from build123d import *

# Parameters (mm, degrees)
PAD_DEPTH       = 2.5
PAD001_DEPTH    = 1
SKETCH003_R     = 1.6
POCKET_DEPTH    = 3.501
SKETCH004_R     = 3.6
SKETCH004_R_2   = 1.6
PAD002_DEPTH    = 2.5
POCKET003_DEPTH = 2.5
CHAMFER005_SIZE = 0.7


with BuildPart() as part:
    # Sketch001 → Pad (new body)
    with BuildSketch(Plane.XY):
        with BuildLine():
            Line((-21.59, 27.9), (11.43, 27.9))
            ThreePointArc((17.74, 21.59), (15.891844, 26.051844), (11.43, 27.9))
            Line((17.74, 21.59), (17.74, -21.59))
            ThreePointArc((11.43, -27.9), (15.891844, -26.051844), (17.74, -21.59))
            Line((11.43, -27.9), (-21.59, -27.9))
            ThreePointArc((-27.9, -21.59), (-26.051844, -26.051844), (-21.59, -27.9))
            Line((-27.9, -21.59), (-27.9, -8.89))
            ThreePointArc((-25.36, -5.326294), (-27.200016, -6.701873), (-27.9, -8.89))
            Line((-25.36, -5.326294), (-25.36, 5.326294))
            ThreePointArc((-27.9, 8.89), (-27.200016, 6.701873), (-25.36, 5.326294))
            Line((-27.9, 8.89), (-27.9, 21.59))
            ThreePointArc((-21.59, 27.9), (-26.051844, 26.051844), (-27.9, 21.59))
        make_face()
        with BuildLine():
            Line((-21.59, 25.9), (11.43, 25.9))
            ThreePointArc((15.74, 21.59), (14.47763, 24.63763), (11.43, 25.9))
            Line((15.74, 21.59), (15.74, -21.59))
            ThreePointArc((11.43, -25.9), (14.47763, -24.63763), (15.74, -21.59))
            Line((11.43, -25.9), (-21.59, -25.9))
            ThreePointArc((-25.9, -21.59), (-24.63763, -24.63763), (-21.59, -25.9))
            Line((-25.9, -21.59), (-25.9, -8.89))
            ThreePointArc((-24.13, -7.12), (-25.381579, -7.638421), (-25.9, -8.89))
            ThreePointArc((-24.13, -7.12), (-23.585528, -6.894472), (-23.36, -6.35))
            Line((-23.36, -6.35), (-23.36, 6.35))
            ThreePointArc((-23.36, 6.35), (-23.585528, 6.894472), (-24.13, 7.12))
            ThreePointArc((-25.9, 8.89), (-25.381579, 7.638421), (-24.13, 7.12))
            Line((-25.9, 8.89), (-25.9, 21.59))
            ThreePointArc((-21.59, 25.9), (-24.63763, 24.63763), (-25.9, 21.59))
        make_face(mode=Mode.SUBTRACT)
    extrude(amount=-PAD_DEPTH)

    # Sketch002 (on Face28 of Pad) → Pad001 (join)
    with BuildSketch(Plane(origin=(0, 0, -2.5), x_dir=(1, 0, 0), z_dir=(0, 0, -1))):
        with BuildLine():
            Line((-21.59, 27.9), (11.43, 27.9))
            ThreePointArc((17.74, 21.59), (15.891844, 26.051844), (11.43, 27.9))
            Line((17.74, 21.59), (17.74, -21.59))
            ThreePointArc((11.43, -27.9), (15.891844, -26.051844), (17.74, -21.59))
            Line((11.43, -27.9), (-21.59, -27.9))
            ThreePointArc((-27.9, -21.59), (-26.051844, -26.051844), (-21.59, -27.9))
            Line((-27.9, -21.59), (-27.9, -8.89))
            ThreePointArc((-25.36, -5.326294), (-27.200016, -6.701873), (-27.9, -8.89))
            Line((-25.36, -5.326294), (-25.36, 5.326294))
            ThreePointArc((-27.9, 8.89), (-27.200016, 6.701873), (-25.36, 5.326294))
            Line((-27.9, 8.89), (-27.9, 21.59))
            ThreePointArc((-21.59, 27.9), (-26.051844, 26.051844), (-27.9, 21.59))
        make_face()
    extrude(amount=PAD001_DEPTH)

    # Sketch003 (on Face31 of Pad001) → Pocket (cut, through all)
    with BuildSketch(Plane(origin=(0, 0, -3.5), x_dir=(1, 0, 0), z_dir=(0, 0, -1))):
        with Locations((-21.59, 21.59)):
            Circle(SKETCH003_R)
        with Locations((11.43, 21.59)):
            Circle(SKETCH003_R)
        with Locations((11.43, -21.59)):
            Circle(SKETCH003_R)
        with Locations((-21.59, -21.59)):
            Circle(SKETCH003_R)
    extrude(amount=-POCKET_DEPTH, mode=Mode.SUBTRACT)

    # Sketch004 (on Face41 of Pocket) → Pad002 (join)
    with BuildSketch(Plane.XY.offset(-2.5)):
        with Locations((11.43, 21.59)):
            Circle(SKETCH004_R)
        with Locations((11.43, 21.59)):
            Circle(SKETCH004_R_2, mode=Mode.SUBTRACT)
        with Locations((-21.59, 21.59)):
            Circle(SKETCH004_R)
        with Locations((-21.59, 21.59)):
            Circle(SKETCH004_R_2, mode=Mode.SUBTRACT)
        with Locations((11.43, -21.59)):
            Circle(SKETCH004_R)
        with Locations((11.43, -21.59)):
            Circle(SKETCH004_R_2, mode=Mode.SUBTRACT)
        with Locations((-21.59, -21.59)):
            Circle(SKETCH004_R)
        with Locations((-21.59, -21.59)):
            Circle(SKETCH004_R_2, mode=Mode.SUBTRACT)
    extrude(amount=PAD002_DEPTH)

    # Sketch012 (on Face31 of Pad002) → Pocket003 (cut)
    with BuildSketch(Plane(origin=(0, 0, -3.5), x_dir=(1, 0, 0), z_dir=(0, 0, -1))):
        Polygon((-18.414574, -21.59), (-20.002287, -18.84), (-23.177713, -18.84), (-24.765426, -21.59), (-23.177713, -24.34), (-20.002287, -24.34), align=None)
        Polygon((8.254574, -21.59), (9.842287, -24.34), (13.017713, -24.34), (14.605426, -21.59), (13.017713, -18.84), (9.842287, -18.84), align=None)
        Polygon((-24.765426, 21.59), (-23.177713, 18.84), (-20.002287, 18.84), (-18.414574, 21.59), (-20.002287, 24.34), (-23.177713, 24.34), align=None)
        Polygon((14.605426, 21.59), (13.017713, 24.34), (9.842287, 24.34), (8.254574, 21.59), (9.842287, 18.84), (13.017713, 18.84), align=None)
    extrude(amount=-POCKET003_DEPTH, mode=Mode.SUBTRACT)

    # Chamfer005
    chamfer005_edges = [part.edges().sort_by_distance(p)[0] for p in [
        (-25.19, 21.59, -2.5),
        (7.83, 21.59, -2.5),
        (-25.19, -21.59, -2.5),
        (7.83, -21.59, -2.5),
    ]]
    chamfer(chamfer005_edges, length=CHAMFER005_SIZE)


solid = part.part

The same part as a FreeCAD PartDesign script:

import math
import FreeCAD as App
import Part
import Sketcher
Q = App.Units.Quantity


def edges_at(feature, points):
    """Names of the edges that pass closest to the given points."""
    edges = feature.Shape.Edges
    near = lambda p: min(range(len(edges)), key=lambda i: edges[i].distToShape(Part.Vertex(*p))[0])
    return sorted({f"Edge{near(p) + 1}" for p in points})

doc = App.newDocument("Part")
body = doc.addObject("PartDesign::Body", "Body")

sketch1 = doc.addObject("Sketcher::SketchObject", "Sketch")
body.addObject(sketch1)
sketch1.AttachmentSupport = (doc.XY_Plane, [""])
sketch1.MapMode = "FlatFace"
sketch1.addGeometry([
    Part.LineSegment(App.Vector(11.4, 27.9, 0), App.Vector(-21.6, 27.9, 0)),
    Part.ArcOfCircle(Part.Circle(App.Vector(-21.6, 21.6, 0), App.Vector(0, 0, 1), 6.3), math.radians(90), math.radians(180)),
    Part.LineSegment(App.Vector(-27.9, 21.6, 0), App.Vector(-27.9, 8.9, 0)),
    Part.ArcOfCircle(Part.Circle(App.Vector(-24.1, 8.9, 0), App.Vector(0, 0, 1), 3.8), math.radians(-180), math.radians(-109)),
    Part.LineSegment(App.Vector(-25.4, 5.3, 0), App.Vector(-25.4, -5.3, 0)),
    Part.ArcOfCircle(Part.Circle(App.Vector(-24.1, -8.9, 0), App.Vector(0, 0, 1), 3.8), math.radians(109), math.radians(180)),
    Part.LineSegment(App.Vector(-27.9, -8.9, 0), App.Vector(-27.9, -21.6, 0)),
    Part.ArcOfCircle(Part.Circle(App.Vector(-21.6, -21.6, 0), App.Vector(0, 0, 1), 6.3), math.radians(180), math.radians(270)),
    Part.LineSegment(App.Vector(-21.6, -27.9, 0), App.Vector(11.4, -27.9, 0)),
    Part.ArcOfCircle(Part.Circle(App.Vector(11.4, -21.6, 0), App.Vector(0, 0, 1), 6.3), math.radians(-90), math.radians(0)),
    Part.LineSegment(App.Vector(17.7, -21.6, 0), App.Vector(17.7, 21.6, 0)),
    Part.ArcOfCircle(Part.Circle(App.Vector(11.4, 21.6, 0), App.Vector(0, 0, 1), 6.3), math.radians(0), math.radians(90)),
    Part.LineSegment(App.Vector(-21.6, 25.9, 0), App.Vector(11.4, 25.9, 0)),
    Part.ArcOfCircle(Part.Circle(App.Vector(11.4, 21.6, 0), App.Vector(0, 0, 1), 4.3), math.radians(0), math.radians(90)),
    Part.LineSegment(App.Vector(15.7, 21.6, 0), App.Vector(15.7, -21.6, 0)),
    Part.ArcOfCircle(Part.Circle(App.Vector(11.4, -21.6, 0), App.Vector(0, 0, 1), 4.3), math.radians(-90), math.radians(0)),
    Part.LineSegment(App.Vector(11.4, -25.9, 0), App.Vector(-21.6, -25.9, 0)),
    Part.ArcOfCircle(Part.Circle(App.Vector(-21.6, -21.6, 0), App.Vector(0, 0, 1), 4.3), math.radians(-180), math.radians(-90)),
    Part.LineSegment(App.Vector(-25.9, -21.6, 0), App.Vector(-25.9, -8.9, 0)),
    Part.ArcOfCircle(Part.Circle(App.Vector(-24.1, -8.9, 0), App.Vector(0, 0, 1), 1.8), math.radians(90), math.radians(180)),
    Part.ArcOfCircle(Part.Circle(App.Vector(-24.1, -6.3, 0), App.Vector(0, 0, 1), 0.8), math.radians(-90), math.radians(0)),
    Part.LineSegment(App.Vector(-23.4, -6.3, 0), App.Vector(-23.4, 6.3, 0)),
    Part.ArcOfCircle(Part.Circle(App.Vector(-24.1, 6.3, 0), App.Vector(0, 0, 1), 0.8), math.radians(0), math.radians(90)),
    Part.ArcOfCircle(Part.Circle(App.Vector(-24.1, 8.9, 0), App.Vector(0, 0, 1), 1.8), math.radians(-180), math.radians(-90)),
    Part.LineSegment(App.Vector(-25.9, 8.9, 0), App.Vector(-25.9, 21.6, 0)),
    Part.ArcOfCircle(Part.Circle(App.Vector(-21.6, 21.6, 0), App.Vector(0, 0, 1), 4.3), math.radians(90), math.radians(180)),
], False)
sketch1.addConstraint([
    Sketcher.Constraint("Tangent", 0, 2, 1, 1),
    Sketcher.Constraint("Tangent", 1, 2, 2, 1),
    Sketcher.Constraint("Tangent", 2, 2, 3, 1),
    Sketcher.Constraint("Coincident", 3, 2, 4, 1),
    Sketcher.Constraint("Coincident", 4, 2, 5, 1),
    Sketcher.Constraint("Tangent", 5, 2, 6, 1),
    Sketcher.Constraint("Tangent", 6, 2, 7, 1),
    Sketcher.Constraint("Tangent", 7, 2, 8, 1),
    Sketcher.Constraint("Tangent", 8, 2, 9, 1),
    Sketcher.Constraint("Tangent", 9, 2, 10, 1),
    Sketcher.Constraint("Tangent", 10, 2, 11, 1),
    Sketcher.Constraint("Tangent", 11, 2, 0, 1),
    Sketcher.Constraint("Tangent", 12, 2, 13, 2),
    Sketcher.Constraint("Tangent", 13, 1, 14, 1),
    Sketcher.Constraint("Tangent", 14, 2, 15, 2),
    Sketcher.Constraint("Tangent", 15, 1, 16, 1),
    Sketcher.Constraint("Tangent", 16, 2, 17, 2),
    Sketcher.Constraint("Tangent", 17, 1, 18, 1),
    Sketcher.Constraint("Tangent", 18, 2, 19, 2),
    Sketcher.Constraint("Tangent", 19, 1, 20, 1),
    Sketcher.Constraint("Tangent", 20, 2, 21, 1),
    Sketcher.Constraint("Tangent", 21, 2, 22, 1),
    Sketcher.Constraint("Tangent", 22, 2, 23, 2),
    Sketcher.Constraint("Tangent", 23, 1, 24, 1),
    Sketcher.Constraint("Tangent", 24, 2, 25, 2),
    Sketcher.Constraint("Tangent", 25, 1, 12, 1),
    Sketcher.Constraint("Horizontal", 0),
    Sketcher.Constraint("Vertical", 2),
    Sketcher.Constraint("Vertical", 4),
    Sketcher.Constraint("Vertical", 6),
    Sketcher.Constraint("Horizontal", 8),
    Sketcher.Constraint("Vertical", 10),
    Sketcher.Constraint("Horizontal", 12),
    Sketcher.Constraint("Vertical", 14),
    Sketcher.Constraint("Horizontal", 16),
    Sketcher.Constraint("Vertical", 18),
    Sketcher.Constraint("Vertical", 21),
    Sketcher.Constraint("Vertical", 24),
    Sketcher.Constraint("Coincident", 13, 3, 11, 3),
    Sketcher.Constraint("Coincident", 15, 3, 9, 3),
    Sketcher.Constraint("Coincident", 17, 3, 7, 3),
    Sketcher.Constraint("Coincident", 19, 3, 5, 3),
    Sketcher.Constraint("Coincident", 23, 3, 3, 3),
    Sketcher.Constraint("Coincident", 25, 3, 1, 3),
    Sketcher.Constraint("Equal", 3, 5),
    Sketcher.Constraint("Equal", 1, 7),
    Sketcher.Constraint("Equal", 7, 9),
    Sketcher.Constraint("Equal", 9, 11),
    Sketcher.Constraint("Equal", 20, 22),
    Sketcher.Constraint("Symmetric", 3, 3, 5, 3, -1),
    Sketcher.Constraint("Vertical", 19, 3, 20, 3),
    Sketcher.Constraint("Equal", 2, 6),
    Sketcher.Constraint("Equal", 18, 21),
    Sketcher.Constraint("Radius", 1, Q("6.309999 mm")),
    Sketcher.Constraint("Radius", 3, Q("3.770001 mm")),
    Sketcher.Constraint("Radius", 13, Q("4.310001 mm")),
    Sketcher.Constraint("Radius", 20, Q("0.770001 mm")),
    Sketcher.Constraint("DistanceY", 2, 2, 2, 1, Q("12.7 mm")),
    Sketcher.Constraint("DistanceX", 4, 2, 20, 2, Q("2 mm")),
    Sketcher.Constraint("DistanceX", 0, 2, 0, 1, Q("33.02 mm")),
    Sketcher.Constraint("DistanceX", 1, 2, -1, 1, Q("27.9 mm")),
])
pad1 = doc.addObject("PartDesign::Pad", "Pad")
body.addObject(pad1)
pad1.Profile = sketch1
pad1.Length = 2.5
pad1.Reversed = True

sketch2 = doc.addObject("Sketcher::SketchObject", "Sketch001")
body.addObject(sketch2)
sketch2.AttachmentSupport = (doc.XY_Plane, [""])
sketch2.MapMode = "FlatFace"
sketch2.AttachmentOffset = App.Placement(App.Vector(0, 0, -2.5), App.Rotation())
sketch2.addGeometry([
    Part.LineSegment(App.Vector(11.4, -27.9, 0), App.Vector(-21.6, -27.9, 0)),
    Part.ArcOfCircle(Part.Circle(App.Vector(-21.6, -21.6, 0), App.Vector(0, 0, 1), 6.3), math.radians(180), math.radians(270)),
    Part.LineSegment(App.Vector(-27.9, -21.6, 0), App.Vector(-27.9, -8.9, 0)),
    Part.ArcOfCircle(Part.Circle(App.Vector(-24.1, -8.9, 0), App.Vector(0, 0, 1), 3.8), math.radians(109), math.radians(180)),
    Part.LineSegment(App.Vector(-25.4, -5.3, 0), App.Vector(-25.4, 5.3, 0)),
    Part.ArcOfCircle(Part.Circle(App.Vector(-24.1, 8.9, 0), App.Vector(0, 0, 1), 3.8), math.radians(-180), math.radians(-109)),
    Part.LineSegment(App.Vector(-27.9, 8.9, 0), App.Vector(-27.9, 21.6, 0)),
    Part.ArcOfCircle(Part.Circle(App.Vector(-21.6, 21.6, 0), App.Vector(0, 0, 1), 6.3), math.radians(90), math.radians(180)),
    Part.LineSegment(App.Vector(-21.6, 27.9, 0), App.Vector(11.4, 27.9, 0)),
    Part.ArcOfCircle(Part.Circle(App.Vector(11.4, 21.6, 0), App.Vector(0, 0, 1), 6.3), math.radians(0), math.radians(90)),
    Part.LineSegment(App.Vector(17.7, 21.6, 0), App.Vector(17.7, -21.6, 0)),
    Part.ArcOfCircle(Part.Circle(App.Vector(11.4, -21.6, 0), App.Vector(0, 0, 1), 6.3), math.radians(-90), math.radians(0)),
], False)
sketch2.addConstraint([
    Sketcher.Constraint("Tangent", 0, 2, 1, 2),
    Sketcher.Constraint("Tangent", 1, 1, 2, 1),
    Sketcher.Constraint("Tangent", 2, 2, 3, 2),
    Sketcher.Constraint("Coincident", 3, 1, 4, 1),
    Sketcher.Constraint("Coincident", 4, 2, 5, 2),
    Sketcher.Constraint("Tangent", 5, 1, 6, 1),
    Sketcher.Constraint("Tangent", 6, 2, 7, 2),
    Sketcher.Constraint("Tangent", 7, 1, 8, 1),
    Sketcher.Constraint("Tangent", 8, 2, 9, 2),
    Sketcher.Constraint("Tangent", 9, 1, 10, 1),
    Sketcher.Constraint("Tangent", 10, 2, 11, 2),
    Sketcher.Constraint("Tangent", 11, 1, 0, 1),
    Sketcher.Constraint("Horizontal", 0),
    Sketcher.Constraint("Vertical", 2),
    Sketcher.Constraint("Vertical", 4),
    Sketcher.Constraint("Vertical", 6),
    Sketcher.Constraint("Horizontal", 8),
    Sketcher.Constraint("Vertical", 10),
    Sketcher.Constraint("Equal", 3, 5),
    Sketcher.Constraint("Equal", 1, 7),
    Sketcher.Constraint("Equal", 7, 9),
    Sketcher.Constraint("Equal", 9, 11),
    Sketcher.Constraint("Symmetric", 3, 3, 5, 3, -1),
    Sketcher.Constraint("Equal", 2, 6),
    Sketcher.Constraint("Radius", 1, Q("6.309999 mm")),
    Sketcher.Constraint("Radius", 3, Q("3.770001 mm")),
    Sketcher.Constraint("DistanceY", 2, 1, 2, 2, Q("12.7 mm")),
    Sketcher.Constraint("DistanceX", 0, 2, 0, 1, Q("33.02 mm")),
    Sketcher.Constraint("DistanceY", 10, 2, 10, 1, Q("43.18 mm")),
    Sketcher.Constraint("DistanceX", 1, 1, -1, 1, Q("27.9 mm")),
    Sketcher.Constraint("DistanceX", 3, 1, -1, 1, Q("25.36 mm")),
])
pad2 = doc.addObject("PartDesign::Pad", "Pad001")
body.addObject(pad2)
pad2.Profile = sketch2
pad2.Length = 1
pad2.Reversed = True

sketch3 = doc.addObject("Sketcher::SketchObject", "Sketch002")
body.addObject(sketch3)
sketch3.AttachmentSupport = (doc.XY_Plane, [""])
sketch3.MapMode = "FlatFace"
sketch3.AttachmentOffset = App.Placement(App.Vector(0, 0, -3.5), App.Rotation())
sketch3.addGeometry([
    Part.Circle(App.Vector(-21.6, -21.6, 0), App.Vector(0, 0, 1), 1.6),
    Part.Circle(App.Vector(11.4, -21.6, 0), App.Vector(0, 0, 1), 1.6),
    Part.Circle(App.Vector(11.4, 21.6, 0), App.Vector(0, 0, 1), 1.6),
    Part.Circle(App.Vector(-21.6, 21.6, 0), App.Vector(0, 0, 1), 1.6),
], False)
sketch3.addConstraint([
    Sketcher.Constraint("Equal", 0, 1),
    Sketcher.Constraint("Equal", 1, 2),
    Sketcher.Constraint("Equal", 2, 3),
    Sketcher.Constraint("Symmetric", 1, 3, 2, 3, -1),
    Sketcher.Constraint("Symmetric", 0, 3, 3, 3, -1),
    Sketcher.Constraint("Horizontal", 0, 3, 1, 3),
    Sketcher.Constraint("Diameter", 0, Q("3.2 mm")),
    Sketcher.Constraint("DistanceX", 0, 3, -1, 1, Q("21.59 mm")),
    Sketcher.Constraint("DistanceY", 0, 3, -1, 1, Q("21.59 mm")),
    Sketcher.Constraint("DistanceX", -1, 1, 1, 3, Q("11.43 mm")),
])
pocket1 = doc.addObject("PartDesign::Pocket", "Pocket")
body.addObject(pocket1)
pocket1.Profile = sketch3
pocket1.Type = "ThroughAll"
pocket1.Reversed = True

sketch4 = doc.addObject("Sketcher::SketchObject", "Sketch003")
body.addObject(sketch4)
sketch4.AttachmentSupport = (doc.XY_Plane, [""])
sketch4.MapMode = "FlatFace"
sketch4.AttachmentOffset = App.Placement(App.Vector(0, 0, -2.5), App.Rotation())
sketch4.addGeometry([
    Part.Circle(App.Vector(11.4, 21.6, 0), App.Vector(0, 0, 1), 3.6),
    Part.Circle(App.Vector(11.4, 21.6, 0), App.Vector(0, 0, 1), 1.6),
    Part.Circle(App.Vector(-21.6, 21.6, 0), App.Vector(0, 0, 1), 3.6),
    Part.Circle(App.Vector(-21.6, 21.6, 0), App.Vector(0, 0, 1), 1.6),
    Part.Circle(App.Vector(11.4, -21.6, 0), App.Vector(0, 0, 1), 3.6),
    Part.Circle(App.Vector(11.4, -21.6, 0), App.Vector(0, 0, 1), 1.6),
    Part.Circle(App.Vector(-21.6, -21.6, 0), App.Vector(0, 0, 1), 3.6),
    Part.Circle(App.Vector(-21.6, -21.6, 0), App.Vector(0, 0, 1), 1.6),
], False)
sketch4.addConstraint([
    Sketcher.Constraint("Coincident", 1, 3, 0, 3),
    Sketcher.Constraint("Coincident", 3, 3, 2, 3),
    Sketcher.Constraint("Coincident", 5, 3, 4, 3),
    Sketcher.Constraint("Coincident", 7, 3, 6, 3),
    Sketcher.Constraint("Equal", 0, 2),
    Sketcher.Constraint("Equal", 1, 3),
    Sketcher.Constraint("Equal", 2, 4),
    Sketcher.Constraint("Equal", 3, 5),
    Sketcher.Constraint("Equal", 4, 6),
    Sketcher.Constraint("Equal", 5, 7),
    Sketcher.Constraint("Symmetric", 0, 3, 4, 3, -1),
    Sketcher.Constraint("Symmetric", 2, 3, 6, 3, -1),
    Sketcher.Constraint("Horizontal", 1, 3, 2, 3),
    Sketcher.Constraint("Diameter", 0, Q("7.2 mm")),
    Sketcher.Constraint("Diameter", 1, Q("3.2 mm")),
    Sketcher.Constraint("DistanceX", -1, 1, 0, 3, Q("11.43 mm")),
    Sketcher.Constraint("DistanceY", -1, 1, 0, 3, Q("21.59 mm")),
    Sketcher.Constraint("DistanceX", 2, 3, -1, 1, Q("21.59 mm")),
])
pad3 = doc.addObject("PartDesign::Pad", "Pad002")
body.addObject(pad3)
pad3.Profile = sketch4
pad3.Length = 2.5

sketch5 = doc.addObject("Sketcher::SketchObject", "Sketch004")
body.addObject(sketch5)
sketch5.AttachmentSupport = (doc.XY_Plane, [""])
sketch5.MapMode = "FlatFace"
sketch5.AttachmentOffset = App.Placement(App.Vector(0, 0, -3.5), App.Rotation())
sketch5.addGeometry([
    Part.LineSegment(App.Vector(-18.4, 21.6, 0), App.Vector(-20, 18.8, 0)),
    Part.LineSegment(App.Vector(-20, 18.8, 0), App.Vector(-23.2, 18.8, 0)),
    Part.LineSegment(App.Vector(-23.2, 18.8, 0), App.Vector(-24.8, 21.6, 0)),
    Part.LineSegment(App.Vector(-24.8, 21.6, 0), App.Vector(-23.2, 24.3, 0)),
    Part.LineSegment(App.Vector(-23.2, 24.3, 0), App.Vector(-20, 24.3, 0)),
    Part.LineSegment(App.Vector(-20, 24.3, 0), App.Vector(-18.4, 21.6, 0)),
    Part.LineSegment(App.Vector(8.3, 21.6, 0), App.Vector(9.8, 24.3, 0)),
    Part.LineSegment(App.Vector(9.8, 24.3, 0), App.Vector(13, 24.3, 0)),
    Part.LineSegment(App.Vector(13, 24.3, 0), App.Vector(14.6, 21.6, 0)),
    Part.LineSegment(App.Vector(14.6, 21.6, 0), App.Vector(13, 18.8, 0)),
    Part.LineSegment(App.Vector(13, 18.8, 0), App.Vector(9.8, 18.8, 0)),
    Part.LineSegment(App.Vector(9.8, 18.8, 0), App.Vector(8.3, 21.6, 0)),
    Part.LineSegment(App.Vector(-24.8, -21.6, 0), App.Vector(-23.2, -18.8, 0)),
    Part.LineSegment(App.Vector(-23.2, -18.8, 0), App.Vector(-20, -18.8, 0)),
    Part.LineSegment(App.Vector(-20, -18.8, 0), App.Vector(-18.4, -21.6, 0)),
    Part.LineSegment(App.Vector(-18.4, -21.6, 0), App.Vector(-20, -24.3, 0)),
    Part.LineSegment(App.Vector(-20, -24.3, 0), App.Vector(-23.2, -24.3, 0)),
    Part.LineSegment(App.Vector(-23.2, -24.3, 0), App.Vector(-24.8, -21.6, 0)),
    Part.LineSegment(App.Vector(14.6, -21.6, 0), App.Vector(13, -24.3, 0)),
    Part.LineSegment(App.Vector(13, -24.3, 0), App.Vector(9.8, -24.3, 0)),
    Part.LineSegment(App.Vector(9.8, -24.3, 0), App.Vector(8.3, -21.6, 0)),
    Part.LineSegment(App.Vector(8.3, -21.6, 0), App.Vector(9.8, -18.8, 0)),
    Part.LineSegment(App.Vector(9.8, -18.8, 0), App.Vector(13, -18.8, 0)),
    Part.LineSegment(App.Vector(13, -18.8, 0), App.Vector(14.6, -21.6, 0)),
], False)
sketch5.addConstraint([
    Sketcher.Constraint("Coincident", 0, 2, 1, 1),
    Sketcher.Constraint("Coincident", 1, 2, 2, 1),
    Sketcher.Constraint("Coincident", 2, 2, 3, 1),
    Sketcher.Constraint("Coincident", 3, 2, 4, 1),
    Sketcher.Constraint("Coincident", 4, 2, 5, 1),
    Sketcher.Constraint("Coincident", 5, 2, 0, 1),
    Sketcher.Constraint("Coincident", 6, 2, 7, 1),
    Sketcher.Constraint("Coincident", 7, 2, 8, 1),
    Sketcher.Constraint("Coincident", 8, 2, 9, 1),
    Sketcher.Constraint("Coincident", 9, 2, 10, 1),
    Sketcher.Constraint("Coincident", 10, 2, 11, 1),
    Sketcher.Constraint("Coincident", 11, 2, 6, 1),
    Sketcher.Constraint("Coincident", 12, 2, 13, 1),
    Sketcher.Constraint("Coincident", 13, 2, 14, 1),
    Sketcher.Constraint("Coincident", 14, 2, 15, 1),
    Sketcher.Constraint("Coincident", 15, 2, 16, 1),
    Sketcher.Constraint("Coincident", 16, 2, 17, 1),
    Sketcher.Constraint("Coincident", 17, 2, 12, 1),
    Sketcher.Constraint("Coincident", 18, 2, 19, 1),
    Sketcher.Constraint("Coincident", 19, 2, 20, 1),
    Sketcher.Constraint("Coincident", 20, 2, 21, 1),
    Sketcher.Constraint("Coincident", 21, 2, 22, 1),
    Sketcher.Constraint("Coincident", 22, 2, 23, 1),
    Sketcher.Constraint("Coincident", 23, 2, 18, 1),
    Sketcher.Constraint("Horizontal", 1),
    Sketcher.Constraint("Horizontal", 4),
    Sketcher.Constraint("Horizontal", 7),
    Sketcher.Constraint("Horizontal", 10),
    Sketcher.Constraint("Horizontal", 13),
    Sketcher.Constraint("Horizontal", 16),
    Sketcher.Constraint("Horizontal", 19),
    Sketcher.Constraint("Horizontal", 22),
    Sketcher.Constraint("Symmetric", 1, 2, 12, 2, -1),
    Sketcher.Constraint("Symmetric", 5, 2, 14, 2, -1),
    Sketcher.Constraint("Symmetric", 4, 2, 15, 2, -1),
    Sketcher.Constraint("Symmetric", 2, 2, 17, 2, -1),
    Sketcher.Constraint("Symmetric", 7, 2, 18, 2, -1),
    Sketcher.Constraint("Symmetric", 11, 2, 20, 2, -1),
    Sketcher.Constraint("Symmetric", 10, 2, 21, 2, -1),
    Sketcher.Constraint("Symmetric", 8, 2, 23, 2, -1),
    Sketcher.Constraint("Parallel", 0, 3),
    Sketcher.Constraint("Parallel", 2, 5),
    Sketcher.Constraint("Parallel", 3, 6),
    Sketcher.Constraint("Parallel", 5, 8),
    Sketcher.Constraint("Parallel", 6, 9),
    Sketcher.Constraint("Parallel", 8, 11),
    Sketcher.Constraint("Parallel", 9, 12),
    Sketcher.Constraint("Parallel", 11, 14),
    Sketcher.Constraint("Parallel", 14, 17),
    Sketcher.Constraint("Parallel", 17, 20),
    Sketcher.Constraint("Parallel", 20, 23),
    Sketcher.Constraint("Horizontal", 2, 2, 5, 2),
    Sketcher.Constraint("Horizontal", 4, 2, 6, 2),
    Sketcher.Constraint("Horizontal", 5, 2, 8, 2),
    Sketcher.Constraint("Horizontal", 1, 2, 9, 2),
    Sketcher.Constraint("Horizontal", 8, 2, 11, 2),
    Sketcher.Constraint("Vertical", 1, 2, 3, 2),
    Sketcher.Constraint("Equal", 4, 7),
    Sketcher.Constraint("Angle", 0, Q("-119.999996 deg")),
    Sketcher.Constraint("DistanceY", 1, 2, 3, 2, Q("5.5 mm")),
    Sketcher.Constraint("DistanceY", -1, 1, 0, 2, Q("18.84 mm")),
    Sketcher.Constraint("DistanceX", 3, 2, 6, 2, Q("33.02 mm")),
    Sketcher.Constraint("DistanceX", 1, 2, 1, 1, Q("3.175426 mm")),
    Sketcher.Constraint("DistanceX", 0, 2, -1, 1, Q("20.002287 mm")),
])
pocket2 = doc.addObject("PartDesign::Pocket", "Pocket001")
body.addObject(pocket2)
pocket2.Profile = sketch5
pocket2.Length = 2.5
pocket2.Reversed = True
doc.recompute()

chamfer = doc.addObject("PartDesign::Chamfer", "Chamfer")
body.addObject(chamfer)
chamfer.Base = (pocket2, edges_at(pocket2, [
    (-25.19, 21.59, -2.5),
    (7.83, 21.59, -2.5),
    (-25.19, -21.59, -2.5),
    (7.83, -21.59, -2.5),
]))
chamfer.Size = 0.7

doc.recompute()
